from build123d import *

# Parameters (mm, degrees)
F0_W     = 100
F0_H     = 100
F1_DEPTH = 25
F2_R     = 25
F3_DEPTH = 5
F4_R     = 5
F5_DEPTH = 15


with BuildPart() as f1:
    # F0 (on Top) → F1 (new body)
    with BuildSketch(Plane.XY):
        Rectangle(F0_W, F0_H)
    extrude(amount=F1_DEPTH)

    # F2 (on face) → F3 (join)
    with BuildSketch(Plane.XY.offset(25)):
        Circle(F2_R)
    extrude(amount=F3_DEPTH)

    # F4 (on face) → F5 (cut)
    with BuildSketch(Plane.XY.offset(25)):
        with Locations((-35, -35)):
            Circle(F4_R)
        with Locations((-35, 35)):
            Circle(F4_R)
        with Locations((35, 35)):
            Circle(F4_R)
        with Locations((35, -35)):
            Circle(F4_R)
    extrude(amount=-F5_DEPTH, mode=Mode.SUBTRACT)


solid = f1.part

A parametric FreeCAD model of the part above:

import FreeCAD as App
import Part
import Sketcher
from FreeCAD import Vector


def add_polygon(sketch, points):
    """Adds a closed chain of lines whose ends are joined by coincident constraints."""
    first, n = sketch.GeometryCount, len(points)
    for a, b in zip(points, points[1:] + points[:1]):
        sketch.addGeometry(Part.LineSegment(App.Vector(*a, 0), App.Vector(*b, 0)), False)
    for i in range(n):
        sketch.addConstraint(Sketcher.Constraint("Coincident", first + i, 2, first + (i + 1) % n, 1))

doc = App.newDocument("Part")
params = doc.addObject("Spreadsheet::Sheet", "Params")
for row, (alias, value) in enumerate([
    ("sketch1_width", "100 mm"),
    ("pad1_length", "25 mm"),
    ("sketch2_diameter", "50 mm"),
    ("pad2_length", "5 mm"),
    ("sketch3_diameter", "10 mm"),
    ("pocket1_length", "15 mm"),
], start=1):
    params.set(f"A{row}", alias)
    params.set(f"B{row}", "=" + value)
    params.setAlias(f"B{row}", alias)

body = doc.addObject("PartDesign::Body", "Body")

# Sketch on XY plane
sketch1 = body.newObject("Sketcher::SketchObject", "Sketch")
sketch1.AttachmentSupport = (doc.getObject("XY_Plane"), [""])
sketch1.MapMode = "FlatFace"
add_polygon(sketch1, [(-50, 50), (-50, -50), (50, -50), (50, 50)])  # lines 0-3
sketch1.addConstraint([
    Sketcher.Constraint("Vertical", 0),
    Sketcher.Constraint("Horizontal", 1),
    Sketcher.Constraint("Vertical", 2),
    Sketcher.Constraint("Horizontal", 3),
    Sketcher.Constraint("Symmetric", 0, 2, 2, 2, -1, 1),
    Sketcher.Constraint("Equal", 3, 0),
    Sketcher.Constraint("DistanceX", 1, 1, 1, 2, 100.0),
])
sketch1.setExpression("Constraints[10]", "Params.sketch1_width")
pad1 = body.newObject("PartDesign::Pad", "Pad")
pad1.Profile = sketch1
pad1.setExpression("Length", "Params.pad1_length")

# Sketch on XY plane
sketch2 = body.newObject("Sketcher::SketchObject", "Sketch001")
sketch2.AttachmentSupport = (doc.getObject("XY_Plane"), [""])
sketch2.MapMode = "FlatFace"
sketch2.AttachmentOffset = App.Placement(Vector(0, 0, 25), App.Rotation())
sketch2.addGeometry(Part.Circle(Vector(0, 0, 0), Vector(0, 0, 1), 25), False)
sketch2.addConstraint([
    Sketcher.Constraint("Coincident", 0, 3, -1, 1),
    Sketcher.Constraint("Diameter", 0, 50.0),
])
sketch2.setExpression("Constraints[1]", "Params.sketch2_diameter")
pad2 = body.newObject("PartDesign::Pad", "Pad001")
pad2.Profile = sketch2
pad2.setExpression("Length", "Params.pad2_length")

# Sketch on XY plane
sketch3 = body.newObject("Sketcher::SketchObject", "Sketch002")
sketch3.AttachmentSupport = (doc.getObject("XY_Plane"), [""])
sketch3.MapMode = "FlatFace"
sketch3.AttachmentOffset = App.Placement(Vector(0, 0, 25), App.Rotation())
sketch3.addGeometry([
    Part.Circle(Vector(-35, -35, 0), Vector(0, 0, 1), 5),
    Part.Circle(Vector(-35, 35, 0), Vector(0, 0, 1), 5),
    Part.Circle(Vector(35, 35, 0), Vector(0, 0, 1), 5),
    Part.Circle(Vector(35, -35, 0), Vector(0, 0, 1), 5),
], False)
sketch3.addConstraint([
    Sketcher.Constraint("Equal", 0, 1),
    Sketcher.Constraint("Equal", 1, 2),
    Sketcher.Constraint("Equal", 2, 3),
    Sketcher.Constraint("Symmetric", 0, 3, 2, 3, -1, 1),
    Sketcher.Constraint("Symmetric", 1, 3, 3, 3, -1, 1),
    Sketcher.Constraint("Symmetric", 1, 3, 2, 3, -2),
    Sketcher.Constraint("Diameter", 0, 10.0),
    Sketcher.Constraint("DistanceX", 0, 3, -1, 1, 35.0),
    Sketcher.Constraint("DistanceY", 0, 3, -1, 1, 35.0),
])
sketch3.setExpression("Constraints[6]", "Params.sketch3_diameter")
pocket1 = body.newObject("PartDesign::Pocket", "Pocket")
pocket1.Profile = sketch3
pocket1.setExpression("Length", "Params.pocket1_length")

doc.recompute()
